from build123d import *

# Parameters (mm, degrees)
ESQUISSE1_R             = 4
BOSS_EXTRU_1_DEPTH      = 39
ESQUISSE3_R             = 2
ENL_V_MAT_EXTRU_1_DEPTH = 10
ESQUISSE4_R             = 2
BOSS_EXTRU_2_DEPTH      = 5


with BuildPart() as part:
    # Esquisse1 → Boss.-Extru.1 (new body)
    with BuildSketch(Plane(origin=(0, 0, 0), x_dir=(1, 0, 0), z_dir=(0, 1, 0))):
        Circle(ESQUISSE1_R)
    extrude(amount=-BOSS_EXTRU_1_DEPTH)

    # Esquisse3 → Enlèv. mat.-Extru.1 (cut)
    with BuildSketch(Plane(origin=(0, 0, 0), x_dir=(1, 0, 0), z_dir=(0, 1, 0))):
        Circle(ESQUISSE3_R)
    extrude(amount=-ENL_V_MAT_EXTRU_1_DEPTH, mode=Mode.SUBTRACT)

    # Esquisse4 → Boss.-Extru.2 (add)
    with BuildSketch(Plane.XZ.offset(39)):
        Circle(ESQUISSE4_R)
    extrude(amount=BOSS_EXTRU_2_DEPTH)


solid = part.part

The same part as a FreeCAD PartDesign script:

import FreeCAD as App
import Part
import Sketcher

doc = App.newDocument("Part")
body = doc.addObject("PartDesign::Body", "Body")

sketch1 = body.newObject("Sketcher::SketchObject", "Sketch")
sketch1.AttachmentSupport = (doc.getObject("XZ_Plane"), [""])
sketch1.MapMode = "FlatFace"
sketch1.addGeometry(Part.Circle(App.Vector(0, 0, 0), App.Vector(0, 0, 1), 4), False)
sketch1.addConstraint([
    Sketcher.Constraint("Coincident", 0, 3, -1, 1),
    Sketcher.Constraint("Diameter", 0, 8.0),
])
pad1 = body.newObject("PartDesign::Pad", "Pad")
pad1.Profile = sketch1
pad1.Length = 39

sketch2 = body.newObject("Sketcher::SketchObject", "Sketch001")
sketch2.AttachmentSupport = (doc.getObject("XZ_Plane"), [""])
sketch2.MapMode = "FlatFace"
sketch2.addGeometry(Part.Circle(App.Vector(0, 0, 0), App.Vector(0, 0, 1), 2), False)
sketch2.addConstraint([
    Sketcher.Constraint("Coincident", 0, 3, -1, 1),
    Sketcher.Constraint("Diameter", 0, 4.0),
])
pocket1 = body.newObject("PartDesign::Pocket", "Pocket")
pocket1.Profile = sketch2
pocket1.Length = 10
pocket1.Reversed = True

sketch3 = body.newObject("Sketcher::SketchObject", "Sketch002")
sketch3.AttachmentSupport = (doc.getObject("XZ_Plane"), [""])
sketch3.MapMode = "FlatFace"
sketch3.AttachmentOffset = App.Placement(App.Vector(0, 0, 39), App.Rotation())
sketch3.addGeometry(Part.Circle(App.Vector(0, 0, 0), App.Vector(0, 0, 1), 2), False)
sketch3.addConstraint([
    Sketcher.Constraint("Coincident", 0, 3, -1, 1),
    Sketcher.Constraint("Diameter", 0, 4.0),
])
pad2 = body.newObject("PartDesign::Pad", "Pad001")
pad2.Profile = sketch3
pad2.Length = 5

doc.recompute()
